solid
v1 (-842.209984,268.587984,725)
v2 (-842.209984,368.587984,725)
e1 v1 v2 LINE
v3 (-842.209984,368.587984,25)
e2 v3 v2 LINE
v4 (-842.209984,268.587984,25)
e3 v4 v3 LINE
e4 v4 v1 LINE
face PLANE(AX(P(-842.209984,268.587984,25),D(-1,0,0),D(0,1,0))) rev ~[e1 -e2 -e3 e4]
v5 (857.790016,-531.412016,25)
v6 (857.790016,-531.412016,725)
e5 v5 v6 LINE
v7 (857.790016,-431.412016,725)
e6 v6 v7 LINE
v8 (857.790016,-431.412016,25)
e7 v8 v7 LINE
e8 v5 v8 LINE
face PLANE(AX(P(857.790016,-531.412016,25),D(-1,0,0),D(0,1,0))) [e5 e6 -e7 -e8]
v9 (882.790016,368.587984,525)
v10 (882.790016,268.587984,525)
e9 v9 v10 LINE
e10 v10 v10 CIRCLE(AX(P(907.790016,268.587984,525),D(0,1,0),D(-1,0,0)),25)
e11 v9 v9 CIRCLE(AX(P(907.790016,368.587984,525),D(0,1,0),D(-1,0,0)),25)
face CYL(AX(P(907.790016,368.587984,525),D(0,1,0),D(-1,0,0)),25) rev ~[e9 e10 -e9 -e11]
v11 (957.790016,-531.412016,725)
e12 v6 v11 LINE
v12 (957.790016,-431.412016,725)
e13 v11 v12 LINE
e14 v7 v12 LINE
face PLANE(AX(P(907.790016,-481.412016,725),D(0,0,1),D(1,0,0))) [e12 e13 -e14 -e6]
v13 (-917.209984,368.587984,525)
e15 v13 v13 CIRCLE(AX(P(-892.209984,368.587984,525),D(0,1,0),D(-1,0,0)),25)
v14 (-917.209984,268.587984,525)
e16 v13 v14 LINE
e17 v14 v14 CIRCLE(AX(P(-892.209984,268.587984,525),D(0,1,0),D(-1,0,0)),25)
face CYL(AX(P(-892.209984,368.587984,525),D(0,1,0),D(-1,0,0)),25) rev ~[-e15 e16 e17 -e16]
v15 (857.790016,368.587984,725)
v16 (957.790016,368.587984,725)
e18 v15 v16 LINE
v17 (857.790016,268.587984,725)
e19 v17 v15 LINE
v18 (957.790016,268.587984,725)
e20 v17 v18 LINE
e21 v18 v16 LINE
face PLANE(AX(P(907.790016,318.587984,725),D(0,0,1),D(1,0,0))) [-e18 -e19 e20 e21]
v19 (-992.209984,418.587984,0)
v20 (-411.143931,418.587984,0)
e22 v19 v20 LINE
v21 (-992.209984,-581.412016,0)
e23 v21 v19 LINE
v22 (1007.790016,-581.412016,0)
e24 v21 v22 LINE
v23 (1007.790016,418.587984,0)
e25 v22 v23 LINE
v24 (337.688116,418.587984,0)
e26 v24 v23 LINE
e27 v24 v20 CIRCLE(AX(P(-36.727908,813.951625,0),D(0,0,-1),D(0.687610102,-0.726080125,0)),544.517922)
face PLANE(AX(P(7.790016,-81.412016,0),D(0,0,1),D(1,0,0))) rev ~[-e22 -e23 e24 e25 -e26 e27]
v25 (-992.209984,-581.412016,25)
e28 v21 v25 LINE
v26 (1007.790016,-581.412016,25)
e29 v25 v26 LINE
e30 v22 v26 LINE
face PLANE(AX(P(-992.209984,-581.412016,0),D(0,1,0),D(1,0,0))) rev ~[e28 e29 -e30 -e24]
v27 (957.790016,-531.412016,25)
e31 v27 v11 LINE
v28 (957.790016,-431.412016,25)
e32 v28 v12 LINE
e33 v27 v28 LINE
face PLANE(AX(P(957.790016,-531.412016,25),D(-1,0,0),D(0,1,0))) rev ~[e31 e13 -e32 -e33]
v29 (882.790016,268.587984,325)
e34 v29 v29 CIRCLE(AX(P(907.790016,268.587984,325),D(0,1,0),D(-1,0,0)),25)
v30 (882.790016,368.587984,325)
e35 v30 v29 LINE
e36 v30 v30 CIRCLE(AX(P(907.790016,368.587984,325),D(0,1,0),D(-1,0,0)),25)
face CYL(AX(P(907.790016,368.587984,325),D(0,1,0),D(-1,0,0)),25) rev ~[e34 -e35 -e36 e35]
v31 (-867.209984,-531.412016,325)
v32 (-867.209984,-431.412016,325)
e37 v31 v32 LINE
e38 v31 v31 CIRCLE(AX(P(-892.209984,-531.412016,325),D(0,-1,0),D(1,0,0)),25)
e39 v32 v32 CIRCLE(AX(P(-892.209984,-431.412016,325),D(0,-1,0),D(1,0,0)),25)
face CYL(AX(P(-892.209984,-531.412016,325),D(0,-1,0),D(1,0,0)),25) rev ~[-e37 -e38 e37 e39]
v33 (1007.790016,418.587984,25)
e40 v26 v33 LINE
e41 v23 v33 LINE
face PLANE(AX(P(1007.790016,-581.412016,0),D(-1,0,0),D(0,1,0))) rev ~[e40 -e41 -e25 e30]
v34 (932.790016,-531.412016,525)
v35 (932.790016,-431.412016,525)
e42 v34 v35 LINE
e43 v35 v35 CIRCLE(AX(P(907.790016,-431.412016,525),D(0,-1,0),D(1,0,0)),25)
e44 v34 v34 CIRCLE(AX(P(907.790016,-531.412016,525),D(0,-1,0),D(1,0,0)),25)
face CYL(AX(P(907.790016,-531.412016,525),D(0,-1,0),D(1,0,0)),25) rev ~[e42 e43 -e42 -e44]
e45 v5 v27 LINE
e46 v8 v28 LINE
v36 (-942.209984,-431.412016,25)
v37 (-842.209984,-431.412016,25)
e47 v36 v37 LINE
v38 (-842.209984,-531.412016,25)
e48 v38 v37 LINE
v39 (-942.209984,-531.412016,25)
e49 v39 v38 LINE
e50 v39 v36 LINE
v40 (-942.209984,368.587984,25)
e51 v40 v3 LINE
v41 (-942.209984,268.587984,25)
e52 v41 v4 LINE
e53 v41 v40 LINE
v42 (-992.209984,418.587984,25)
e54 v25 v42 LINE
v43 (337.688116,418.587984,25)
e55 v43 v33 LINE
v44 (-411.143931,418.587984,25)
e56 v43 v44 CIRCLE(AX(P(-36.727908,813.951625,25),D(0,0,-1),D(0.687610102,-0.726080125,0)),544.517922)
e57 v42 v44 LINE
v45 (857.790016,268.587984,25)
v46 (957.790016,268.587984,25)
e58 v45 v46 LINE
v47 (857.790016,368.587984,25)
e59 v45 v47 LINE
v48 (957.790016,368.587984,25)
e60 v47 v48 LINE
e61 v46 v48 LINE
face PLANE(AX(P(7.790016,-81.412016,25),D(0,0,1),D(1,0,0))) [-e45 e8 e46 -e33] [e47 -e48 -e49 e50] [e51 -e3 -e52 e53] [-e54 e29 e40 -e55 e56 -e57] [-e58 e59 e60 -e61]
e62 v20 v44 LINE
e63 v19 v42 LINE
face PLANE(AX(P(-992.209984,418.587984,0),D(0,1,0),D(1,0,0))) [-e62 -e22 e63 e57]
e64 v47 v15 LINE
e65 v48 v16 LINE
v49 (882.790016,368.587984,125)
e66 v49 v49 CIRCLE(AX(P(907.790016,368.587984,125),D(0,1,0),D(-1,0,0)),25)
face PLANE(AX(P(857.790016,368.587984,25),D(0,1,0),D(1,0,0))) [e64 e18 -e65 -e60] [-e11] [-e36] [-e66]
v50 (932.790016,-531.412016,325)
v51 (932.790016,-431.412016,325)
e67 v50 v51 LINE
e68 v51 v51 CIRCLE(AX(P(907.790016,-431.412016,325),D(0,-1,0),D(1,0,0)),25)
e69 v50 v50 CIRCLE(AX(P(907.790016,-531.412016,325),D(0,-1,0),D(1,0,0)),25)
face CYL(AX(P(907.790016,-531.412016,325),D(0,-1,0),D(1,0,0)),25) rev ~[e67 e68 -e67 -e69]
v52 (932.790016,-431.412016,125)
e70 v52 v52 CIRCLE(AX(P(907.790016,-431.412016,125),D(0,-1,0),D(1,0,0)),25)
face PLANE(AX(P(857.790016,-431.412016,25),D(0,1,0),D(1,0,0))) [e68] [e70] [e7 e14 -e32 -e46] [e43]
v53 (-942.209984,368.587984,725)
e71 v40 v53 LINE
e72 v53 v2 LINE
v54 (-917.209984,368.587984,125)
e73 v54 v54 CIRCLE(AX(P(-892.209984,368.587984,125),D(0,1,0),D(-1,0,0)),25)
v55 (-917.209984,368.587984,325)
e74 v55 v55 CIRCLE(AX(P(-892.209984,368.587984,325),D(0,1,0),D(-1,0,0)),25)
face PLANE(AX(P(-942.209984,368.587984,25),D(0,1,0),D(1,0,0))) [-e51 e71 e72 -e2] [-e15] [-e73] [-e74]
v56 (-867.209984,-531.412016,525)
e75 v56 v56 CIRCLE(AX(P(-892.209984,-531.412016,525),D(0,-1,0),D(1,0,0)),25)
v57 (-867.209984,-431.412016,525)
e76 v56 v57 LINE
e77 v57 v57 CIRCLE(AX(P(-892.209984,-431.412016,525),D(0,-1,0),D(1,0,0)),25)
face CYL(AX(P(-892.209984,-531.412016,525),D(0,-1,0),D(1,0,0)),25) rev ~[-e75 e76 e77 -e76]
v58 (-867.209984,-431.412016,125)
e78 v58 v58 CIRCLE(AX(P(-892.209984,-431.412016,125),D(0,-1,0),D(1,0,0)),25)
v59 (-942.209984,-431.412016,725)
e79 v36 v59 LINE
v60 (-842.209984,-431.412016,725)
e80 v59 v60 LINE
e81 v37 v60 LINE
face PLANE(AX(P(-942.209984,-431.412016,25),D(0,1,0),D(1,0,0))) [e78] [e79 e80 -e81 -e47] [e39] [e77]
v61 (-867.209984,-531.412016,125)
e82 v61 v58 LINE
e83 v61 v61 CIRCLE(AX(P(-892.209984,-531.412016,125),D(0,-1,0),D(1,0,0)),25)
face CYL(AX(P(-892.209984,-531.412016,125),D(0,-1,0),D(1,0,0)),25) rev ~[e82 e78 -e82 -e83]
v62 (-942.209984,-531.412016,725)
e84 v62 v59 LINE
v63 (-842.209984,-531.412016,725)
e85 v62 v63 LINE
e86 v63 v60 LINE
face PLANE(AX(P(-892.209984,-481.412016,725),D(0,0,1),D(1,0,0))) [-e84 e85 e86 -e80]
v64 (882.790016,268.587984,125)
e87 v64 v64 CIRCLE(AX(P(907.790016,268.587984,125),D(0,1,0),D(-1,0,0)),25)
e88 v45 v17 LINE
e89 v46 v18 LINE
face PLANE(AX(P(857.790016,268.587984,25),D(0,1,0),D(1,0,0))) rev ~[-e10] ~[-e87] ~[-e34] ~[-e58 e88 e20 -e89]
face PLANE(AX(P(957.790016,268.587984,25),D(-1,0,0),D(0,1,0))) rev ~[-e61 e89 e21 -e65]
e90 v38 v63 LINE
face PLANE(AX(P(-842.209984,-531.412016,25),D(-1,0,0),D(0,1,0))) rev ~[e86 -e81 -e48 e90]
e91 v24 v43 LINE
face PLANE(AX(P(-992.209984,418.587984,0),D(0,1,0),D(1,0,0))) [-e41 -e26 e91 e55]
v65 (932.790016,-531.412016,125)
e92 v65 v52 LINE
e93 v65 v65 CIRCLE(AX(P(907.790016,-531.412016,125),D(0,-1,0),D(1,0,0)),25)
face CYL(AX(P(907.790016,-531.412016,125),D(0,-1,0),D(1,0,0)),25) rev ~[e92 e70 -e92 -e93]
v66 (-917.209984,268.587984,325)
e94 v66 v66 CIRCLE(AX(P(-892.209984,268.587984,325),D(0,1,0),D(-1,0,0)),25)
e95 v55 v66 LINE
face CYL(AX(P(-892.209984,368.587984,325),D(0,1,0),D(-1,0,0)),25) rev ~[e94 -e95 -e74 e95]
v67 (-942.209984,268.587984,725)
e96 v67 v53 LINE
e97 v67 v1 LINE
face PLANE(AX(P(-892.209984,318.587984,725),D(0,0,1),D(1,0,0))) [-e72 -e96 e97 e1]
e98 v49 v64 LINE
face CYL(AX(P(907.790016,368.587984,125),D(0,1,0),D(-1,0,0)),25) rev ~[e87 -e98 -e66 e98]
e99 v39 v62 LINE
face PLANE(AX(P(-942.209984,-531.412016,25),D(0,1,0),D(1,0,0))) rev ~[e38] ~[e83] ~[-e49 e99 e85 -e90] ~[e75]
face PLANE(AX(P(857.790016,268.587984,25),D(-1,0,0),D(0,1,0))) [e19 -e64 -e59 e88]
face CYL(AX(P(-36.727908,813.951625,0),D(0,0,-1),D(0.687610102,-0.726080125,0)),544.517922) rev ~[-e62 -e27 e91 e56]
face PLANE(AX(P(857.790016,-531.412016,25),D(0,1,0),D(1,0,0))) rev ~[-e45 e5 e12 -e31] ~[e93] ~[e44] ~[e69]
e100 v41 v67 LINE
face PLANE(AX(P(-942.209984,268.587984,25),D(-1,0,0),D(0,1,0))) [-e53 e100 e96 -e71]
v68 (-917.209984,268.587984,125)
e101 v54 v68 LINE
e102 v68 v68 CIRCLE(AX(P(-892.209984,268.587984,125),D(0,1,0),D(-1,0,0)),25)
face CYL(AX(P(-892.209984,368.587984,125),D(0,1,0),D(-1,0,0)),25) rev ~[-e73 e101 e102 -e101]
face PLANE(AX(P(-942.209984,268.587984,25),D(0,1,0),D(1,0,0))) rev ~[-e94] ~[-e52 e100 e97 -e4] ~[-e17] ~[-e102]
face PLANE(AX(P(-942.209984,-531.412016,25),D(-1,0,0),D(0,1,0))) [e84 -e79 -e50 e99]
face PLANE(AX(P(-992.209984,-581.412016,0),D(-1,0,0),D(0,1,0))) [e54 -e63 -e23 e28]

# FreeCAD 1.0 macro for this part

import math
import FreeCAD as App
import Part
import Sketcher

V = App.Vector
Q = App.Units.Quantity


def add_polygon(sketch, points):
    """Adds a closed chain of lines whose ends are joined by coincident constraints."""
    first, n = sketch.GeometryCount, len(points)
    for a, b in zip(points, points[1:] + points[:1]):
        sketch.addGeometry(Part.LineSegment(App.Vector(*a, 0), App.Vector(*b, 0)), False)
    for i in range(n):
        sketch.addConstraint(Sketcher.Constraint("Coincident", first + i, 2, first + (i + 1) % n, 1))

doc = App.newDocument("Part")
params = doc.addObject("Spreadsheet::Sheet", "Params")
for row, (alias, value) in enumerate([
    ("sketch1_width", "2000 mm"),
    ("sketch1_height", "1000 mm"),
    ("pad1_length", "25 mm"),
    ("sketch2_width", "100 mm"),
    ("pad2_length", "700 mm"),
    ("sketch3_diameter", "50 mm"),
    ("pocket1_length", "100 mm"),
    ("sketch4_width", "100 mm"),
    ("pad3_length", "700 mm"),
    ("sketch5_diameter", "50 mm"),
    ("pocket2_length", "100 mm"),
    ("sketch6_width", "100 mm"),
    ("pad4_length", "700 mm"),
    ("sketch7_diameter", "50 mm"),
    ("pocket3_length", "100 mm"),
    ("sketch8_width", "100 mm"),
    ("pad5_length", "700 mm"),
    ("sketch9_diameter", "50 mm"),
    ("pocket4_length", "100 mm"),
    ("pocket5_length", "25 mm"),
], start=1):
    params.set(f"A{row}", alias)
    params.set(f"B{row}", "=" + value)
    params.setAlias(f"B{row}", alias)

body = doc.addObject("PartDesign::Body", "Body")

# Sketch on XY plane
sketch1 = doc.addObject("Sketcher::SketchObject", "Sketch")
body.addObject(sketch1)
sketch1.AttachmentSupport = (doc.XY_Plane, [""])
sketch1.MapMode = "FlatFace"
add_polygon(sketch1, [(-992.209984, 418.587984), (-992.209984, -581.412016), (1007.790016, -581.412016), (1007.790016, 418.587984)])  # lines 0-3
sketch1.addConstraint([
    Sketcher.Constraint("Vertical", 0),
    Sketcher.Constraint("Horizontal", 1),
    Sketcher.Constraint("Vertical", 2),
    Sketcher.Constraint("Horizontal", 3),
    Sketcher.Constraint("DistanceX", 1, 1, 1, 2, Q("2000 mm")),
    Sketcher.Constraint("DistanceY", 0, 2, 0, 1, Q("1000 mm")),
    Sketcher.Constraint("DistanceX", 0, 2, -1, 1, Q("992.209984 mm")),
    Sketcher.Constraint("DistanceY", 0, 2, -1, 1, Q("581.412016 mm")),
])
sketch1.setExpression("Constraints[8]", "Params.sketch1_width")
sketch1.setExpression("Constraints[9]", "Params.sketch1_height")
pad1 = doc.addObject("PartDesign::Pad", "Pad")
body.addObject(pad1)
pad1.Profile = sketch1
pad1.setExpression("Length", "Params.pad1_length")

# Sketch on XY plane
sketch2 = doc.addObject("Sketcher::SketchObject", "Sketch001")
body.addObject(sketch2)
sketch2.AttachmentSupport = (doc.XY_Plane, [""])
sketch2.MapMode = "FlatFace"
sketch2.AttachmentOffset = App.Placement(V(0, 0, 25), App.Rotation())
add_polygon(sketch2, [(-942.209984, 368.587984), (-942.209984, 268.587984), (-842.209984, 268.587984), (-842.209984, 368.587984)])  # lines 0-3
sketch2.addConstraint([
    Sketcher.Constraint("Vertical", 0),
    Sketcher.Constraint("Horizontal", 1),
    Sketcher.Constraint("Vertical", 2),
    Sketcher.Constraint("Horizontal", 3),
    Sketcher.Constraint("Equal", 3, 0),
    Sketcher.Constraint("DistanceX", 1, 1, 1, 2, Q("100 mm")),
    Sketcher.Constraint("DistanceX", 0, 2, -1, 1, Q("942.209984 mm")),
    Sketcher.Constraint("DistanceY", -1, 1, 0, 2, Q("268.587984 mm")),
])
sketch2.setExpression("Constraints[9]", "Params.sketch2_width")
pad2 = doc.addObject("PartDesign::Pad", "Pad001")
body.addObject(pad2)
pad2.Profile = sketch2
pad2.setExpression("Length", "Params.pad2_length")

# Sketch on XZ plane
sketch3 = doc.addObject("Sketcher::SketchObject", "Sketch002")
body.addObject(sketch3)
sketch3.AttachmentSupport = (doc.XZ_Plane, [""])
sketch3.MapMode = "FlatFace"
sketch3.AttachmentOffset = App.Placement(V(0, 0, -368.587984), App.Rotation())
sketch3.addGeometry([
    Part.Circle(V(-892.209984, 125, 0), V(0, 0, 1), 25),
    Part.Circle(V(-892.209984, 325, 0), V(0, 0, 1), 25),
    Part.Circle(V(-892.209984, 525, 0), V(0, 0, 1), 25),
], False)
sketch3.addConstraint([
    Sketcher.Constraint("Equal", 0, 1),
    Sketcher.Constraint("Equal", 1, 2),
    Sketcher.Constraint("Vertical", 0, 3, 1, 3),
    Sketcher.Constraint("Vertical", 1, 3, 2, 3),
    Sketcher.Constraint("Diameter", 0, Q("50 mm")),
    Sketcher.Constraint("DistanceY", -1, 1, 0, 3, Q("125 mm")),
    Sketcher.Constraint("DistanceY", -1, 1, 1, 3, Q("325 mm")),
    Sketcher.Constraint("DistanceY", -1, 1, 2, 3, Q("525 mm")),
    Sketcher.Constraint("DistanceX", 0, 3, -1, 1, Q("892.209984 mm")),
])
sketch3.setExpression("Constraints[4]", "Params.sketch3_diameter")
pocket1 = doc.addObject("PartDesign::Pocket", "Pocket")
body.addObject(pocket1)
pocket1.Profile = sketch3
pocket1.setExpression("Length", "Params.pocket1_length")
pocket1.Reversed = True

# Sketch on XY plane
sketch4 = doc.addObject("Sketcher::SketchObject", "Sketch003")
body.addObject(sketch4)
sketch4.AttachmentSupport = (doc.XY_Plane, [""])
sketch4.MapMode = "FlatFace"
sketch4.AttachmentOffset = App.Placement(V(0, 0, 25), App.Rotation())
add_polygon(sketch4, [(857.790016, 368.587984), (857.790016, 268.587984), (957.790016, 268.587984), (957.790016, 368.587984)])  # lines 0-3
sketch4.addConstraint([
    Sketcher.Constraint("Vertical", 0),
    Sketcher.Constraint("Horizontal", 1),
    Sketcher.Constraint("Vertical", 2),
    Sketcher.Constraint("Horizontal", 3),
    Sketcher.Constraint("Equal", 3, 0),
    Sketcher.Constraint("DistanceX", 1, 1, 1, 2, Q("100 mm")),
    Sketcher.Constraint("DistanceX", -1, 1, 0, 2, Q("857.790016 mm")),
    Sketcher.Constraint("DistanceY", -1, 1, 0, 2, Q("268.587984 mm")),
])
sketch4.setExpression("Constraints[9]", "Params.sketch4_width")
pad3 = doc.addObject("PartDesign::Pad", "Pad002")
body.addObject(pad3)
pad3.Profile = sketch4
pad3.setExpression("Length", "Params.pad3_length")

# Sketch on XZ plane
sketch5 = doc.addObject("Sketcher::SketchObject", "Sketch004")
body.addObject(sketch5)
sketch5.AttachmentSupport = (doc.XZ_Plane, [""])
sketch5.MapMode = "FlatFace"
sketch5.AttachmentOffset = App.Placement(V(0, 0, -368.587984), App.Rotation())
sketch5.addGeometry([
    Part.Circle(V(907.790016, 125, 0), V(0, 0, 1), 25),
    Part.Circle(V(907.790016, 325, 0), V(0, 0, 1), 25),
    Part.Circle(V(907.790016, 525, 0), V(0, 0, 1), 25),
], False)
sketch5.addConstraint([
    Sketcher.Constraint("Equal", 0, 1),
    Sketcher.Constraint("Equal", 1, 2),
    Sketcher.Constraint("Vertical", 0, 3, 1, 3),
    Sketcher.Constraint("Vertical", 1, 3, 2, 3),
    Sketcher.Constraint("Diameter", 0, Q("50 mm")),
    Sketcher.Constraint("DistanceY", -1, 1, 0, 3, Q("125 mm")),
    Sketcher.Constraint("DistanceY", -1, 1, 1, 3, Q("325 mm")),
    Sketcher.Constraint("DistanceY", -1, 1, 2, 3, Q("525 mm")),
    Sketcher.Constraint("DistanceX", -1, 1, 0, 3, Q("907.790016 mm")),
])
sketch5.setExpression("Constraints[4]", "Params.sketch5_diameter")
pocket2 = doc.addObject("PartDesign::Pocket", "Pocket001")
body.addObject(pocket2)
pocket2.Profile = sketch5
pocket2.setExpression("Length", "Params.pocket2_length")
pocket2.Reversed = True

# Sketch on XY plane
sketch6 = doc.addObject("Sketcher::SketchObject", "Sketch005")
body.addObject(sketch6)
sketch6.AttachmentSupport = (doc.XY_Plane, [""])
sketch6.MapMode = "FlatFace"
sketch6.AttachmentOffset = App.Placement(V(0, 0, 25), App.Rotation())
add_polygon(sketch6, [(-942.209984, -431.412016), (-942.209984, -531.412016), (-842.209984, -531.412016), (-842.209984, -431.412016)])  # lines 0-3
sketch6.addConstraint([
    Sketcher.Constraint("Vertical", 0),
    Sketcher.Constraint("Horizontal", 1),
    Sketcher.Constraint("Vertical", 2),
    Sketcher.Constraint("Horizontal", 3),
    Sketcher.Constraint("Equal", 3, 0),
    Sketcher.Constraint("DistanceX", 1, 1, 1, 2, Q("100 mm")),
    Sketcher.Constraint("DistanceX", 0, 2, -1, 1, Q("942.209984 mm")),
    Sketcher.Constraint("DistanceY", 0, 2, -1, 1, Q("531.412016 mm")),
])
sketch6.setExpression("Constraints[9]", "Params.sketch6_width")
pad4 = doc.addObject("PartDesign::Pad", "Pad003")
body.addObject(pad4)
pad4.Profile = sketch6
pad4.setExpression("Length", "Params.pad4_length")

# Sketch on XZ plane
sketch7 = doc.addObject("Sketcher::SketchObject", "Sketch006")
body.addObject(sketch7)
sketch7.AttachmentSupport = (doc.XZ_Plane, [""])
sketch7.MapMode = "FlatFace"
sketch7.AttachmentOffset = App.Placement(V(0, 0, 531.412016), App.Rotation())
sketch7.addGeometry([
    Part.Circle(V(-892.209984, 525, 0), V(0, 0, 1), 25),
    Part.Circle(V(-892.209984, 325, 0), V(0, 0, 1), 25),
    Part.Circle(V(-892.209984, 125, 0), V(0, 0, 1), 25),
], False)
sketch7.addConstraint([
    Sketcher.Constraint("Equal", 0, 1),
    Sketcher.Constraint("Equal", 1, 2),
    Sketcher.Constraint("Vertical", 0, 3, 1, 3),
    Sketcher.Constraint("Vertical", 1, 3, 2, 3),
    Sketcher.Constraint("Diameter", 0, Q("50 mm")),
    Sketcher.Constraint("DistanceY", -1, 1, 0, 3, Q("525 mm")),
    Sketcher.Constraint("DistanceY", -1, 1, 1, 3, Q("325 mm")),
    Sketcher.Constraint("DistanceY", -1, 1, 2, 3, Q("125 mm")),
    Sketcher.Constraint("DistanceX", 0, 3, -1, 1, Q("892.209984 mm")),
])
sketch7.setExpression("Constraints[4]", "Params.sketch7_diameter")
pocket3 = doc.addObject("PartDesign::Pocket", "Pocket002")
body.addObject(pocket3)
pocket3.Profile = sketch7
pocket3.setExpression("Length", "Params.pocket3_length")

# Sketch on XY plane
sketch8 = doc.addObject("Sketcher::SketchObject", "Sketch007")
body.addObject(sketch8)
sketch8.AttachmentSupport = (doc.XY_Plane, [""])
sketch8.MapMode = "FlatFace"
sketch8.AttachmentOffset = App.Placement(V(0, 0, 25), App.Rotation())
add_polygon(sketch8, [(857.790016, -431.412016), (857.790016, -531.412016), (957.790016, -531.412016), (957.790016, -431.412016)])  # lines 0-3
sketch8.addConstraint([
    Sketcher.Constraint("Vertical", 0),
    Sketcher.Constraint("Horizontal", 1),
    Sketcher.Constraint("Vertical", 2),
    Sketcher.Constraint("Horizontal", 3),
    Sketcher.Constraint("Equal", 3, 0),
    Sketcher.Constraint("DistanceX", 1, 1, 1, 2, Q("100 mm")),
    Sketcher.Constraint("DistanceX", -1, 1, 0, 2, Q("857.790016 mm")),
    Sketcher.Constraint("DistanceY", 0, 2, -1, 1, Q("531.412016 mm")),
])
sketch8.setExpression("Constraints[9]", "Params.sketch8_width")
pad5 = doc.addObject("PartDesign::Pad", "Pad004")
body.addObject(pad5)
pad5.Profile = sketch8
pad5.setExpression("Length", "Params.pad5_length")

# Sketch on XZ plane
sketch9 = doc.addObject("Sketcher::SketchObject", "Sketch008")
body.addObject(sketch9)
sketch9.AttachmentSupport = (doc.XZ_Plane, [""])
sketch9.MapMode = "FlatFace"
sketch9.AttachmentOffset = App.Placement(V(0, 0, 531.412016), App.Rotation())
sketch9.addGeometry([
    Part.Circle(V(907.790016, 525, 0), V(0, 0, 1), 25),
    Part.Circle(V(907.790016, 325, 0), V(0, 0, 1), 25),
    Part.Circle(V(907.790016, 125, 0), V(0, 0, 1), 25),
], False)
sketch9.addConstraint([
    Sketcher.Constraint("Equal", 0, 1),
    Sketcher.Constraint("Equal", 1, 2),
    Sketcher.Constraint("Vertical", 0, 3, 1, 3),
    Sketcher.Constraint("Vertical", 1, 3, 2, 3),
    Sketcher.Constraint("Diameter", 0, Q("50 mm")),
    Sketcher.Constraint("DistanceY", -1, 1, 0, 3, Q("525 mm")),
    Sketcher.Constraint("DistanceY", -1, 1, 1, 3, Q("325 mm")),
    Sketcher.Constraint("DistanceY", -1, 1, 2, 3, Q("125 mm")),
    Sketcher.Constraint("DistanceX", -1, 1, 0, 3, Q("907.790016 mm")),
])
sketch9.setExpression("Constraints[4]", "Params.sketch9_diameter")
pocket4 = doc.addObject("PartDesign::Pocket", "Pocket003")
body.addObject(pocket4)
pocket4.Profile = sketch9
pocket4.setExpression("Length", "Params.pocket4_length")

# Sketch on XY plane
sketch10 = doc.addObject("Sketcher::SketchObject", "Sketch009")
body.addObject(sketch10)
sketch10.AttachmentSupport = (doc.XY_Plane, [""])
sketch10.MapMode = "FlatFace"
sketch10.addGeometry([
    Part.LineSegment(V(-411.143931, 418.587984, 0), V(337.688116, 418.587984, 0)),
    Part.ArcOfCircle(Part.Circle(V(-36.727908, 813.951625, 0), V(0, 0, 1), 544.517922), math.radians(-133.441224), math.radians(-46.558776)),
], False)
sketch10.addConstraint([
    Sketcher.Constraint("Coincident", 0, 1, 1, 1),
    Sketcher.Constraint("Coincident", 1, 2, 0, 2),
    Sketcher.Constraint("Horizontal", 0),
    Sketcher.Constraint("Radius", 1, Q("544.517922 mm")),
    Sketcher.Constraint("DistanceX", 0, 1, 0, 2, Q("748.832047 mm")),
    Sketcher.Constraint("DistanceX", 0, 1, -1, 1, Q("411.143931 mm")),
    Sketcher.Constraint("DistanceY", -1, 1, 1, 3, Q("813.951625 mm")),
])
pocket5 = doc.addObject("PartDesign::Pocket", "Pocket004")
body.addObject(pocket5)
pocket5.Profile = sketch10
pocket5.setExpression("Length", "Params.pocket5_length")
pocket5.Reversed = True

doc.recompute()
